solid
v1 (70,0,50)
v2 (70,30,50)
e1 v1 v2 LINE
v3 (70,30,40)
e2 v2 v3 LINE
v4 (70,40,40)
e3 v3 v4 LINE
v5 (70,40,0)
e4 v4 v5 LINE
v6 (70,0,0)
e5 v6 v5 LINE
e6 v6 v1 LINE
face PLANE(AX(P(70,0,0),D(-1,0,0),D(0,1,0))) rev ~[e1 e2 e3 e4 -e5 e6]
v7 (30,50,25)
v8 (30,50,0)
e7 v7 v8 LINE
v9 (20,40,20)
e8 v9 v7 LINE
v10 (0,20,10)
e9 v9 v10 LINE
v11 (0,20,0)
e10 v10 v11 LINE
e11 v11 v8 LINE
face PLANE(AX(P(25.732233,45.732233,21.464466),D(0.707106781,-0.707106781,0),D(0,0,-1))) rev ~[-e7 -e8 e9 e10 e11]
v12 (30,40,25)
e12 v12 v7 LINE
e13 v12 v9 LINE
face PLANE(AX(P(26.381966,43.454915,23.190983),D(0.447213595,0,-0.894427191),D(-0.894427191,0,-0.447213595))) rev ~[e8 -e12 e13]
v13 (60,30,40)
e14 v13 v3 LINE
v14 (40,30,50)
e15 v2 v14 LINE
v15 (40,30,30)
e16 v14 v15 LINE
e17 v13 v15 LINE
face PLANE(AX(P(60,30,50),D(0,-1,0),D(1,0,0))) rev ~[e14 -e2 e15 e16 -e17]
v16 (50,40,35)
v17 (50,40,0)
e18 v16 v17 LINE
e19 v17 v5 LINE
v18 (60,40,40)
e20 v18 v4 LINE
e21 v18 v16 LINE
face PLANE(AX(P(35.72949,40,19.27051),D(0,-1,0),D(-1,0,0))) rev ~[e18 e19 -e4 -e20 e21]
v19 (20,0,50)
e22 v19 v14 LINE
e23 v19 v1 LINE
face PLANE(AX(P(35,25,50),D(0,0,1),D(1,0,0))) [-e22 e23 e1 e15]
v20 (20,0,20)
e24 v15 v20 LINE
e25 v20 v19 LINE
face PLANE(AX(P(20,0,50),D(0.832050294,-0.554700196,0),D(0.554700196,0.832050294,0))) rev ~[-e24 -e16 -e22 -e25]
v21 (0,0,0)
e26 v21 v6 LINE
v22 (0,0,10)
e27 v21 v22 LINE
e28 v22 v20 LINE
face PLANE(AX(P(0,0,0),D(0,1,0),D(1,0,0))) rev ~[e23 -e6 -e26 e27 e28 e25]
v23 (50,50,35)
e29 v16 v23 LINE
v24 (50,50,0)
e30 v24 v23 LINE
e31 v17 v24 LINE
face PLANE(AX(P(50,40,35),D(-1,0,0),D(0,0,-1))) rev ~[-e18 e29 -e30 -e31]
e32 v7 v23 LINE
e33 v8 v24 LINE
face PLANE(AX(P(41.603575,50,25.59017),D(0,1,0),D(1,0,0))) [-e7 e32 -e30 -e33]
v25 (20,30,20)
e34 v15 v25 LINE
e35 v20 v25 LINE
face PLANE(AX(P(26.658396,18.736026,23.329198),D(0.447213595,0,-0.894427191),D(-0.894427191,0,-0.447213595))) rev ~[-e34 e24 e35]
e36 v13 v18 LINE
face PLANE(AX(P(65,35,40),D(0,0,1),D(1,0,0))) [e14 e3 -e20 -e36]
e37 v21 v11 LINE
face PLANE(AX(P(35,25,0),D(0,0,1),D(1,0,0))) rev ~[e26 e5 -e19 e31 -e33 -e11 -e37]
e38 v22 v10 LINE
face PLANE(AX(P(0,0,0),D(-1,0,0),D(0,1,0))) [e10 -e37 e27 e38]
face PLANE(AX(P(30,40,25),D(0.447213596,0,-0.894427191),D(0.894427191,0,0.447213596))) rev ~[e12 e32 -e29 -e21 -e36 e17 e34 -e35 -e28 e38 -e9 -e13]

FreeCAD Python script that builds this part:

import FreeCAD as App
import Part
import Sketcher

V = App.Vector
Q = App.Units.Quantity

doc = App.newDocument("Part")
body = doc.addObject("PartDesign::Body", "Body")

sketch1 = body.newObject("Sketcher::SketchObject", "Sketch")
sketch1.AttachmentSupport = (doc.getObject("XY_Plane"), [""])
sketch1.MapMode = "FlatFace"
sketch1.addGeometry(Part.LineSegment(V(0, 50, 0), V(0, 0, 0)), False)
sketch1.addGeometry(Part.LineSegment(V(0, 0, 0), V(70, 0, 0)), False)
sketch1.addGeometry(Part.LineSegment(V(70, 0, 0), V(70, 50, 0)), False)
sketch1.addGeometry(Part.LineSegment(V(70, 50, 0), V(0, 50, 0)), False)
sketch1.addConstraint(Sketcher.Constraint("Coincident", 0, 2, 1, 1))
sketch1.addConstraint(Sketcher.Constraint("Coincident", 1, 2, 2, 1))
sketch1.addConstraint(Sketcher.Constraint("Coincident", 2, 2, 3, 1))
sketch1.addConstraint(Sketcher.Constraint("Coincident", 3, 2, 0, 1))
sketch1.addConstraint(Sketcher.Constraint("Vertical", 0))
sketch1.addConstraint(Sketcher.Constraint("Horizontal", 1))
sketch1.addConstraint(Sketcher.Constraint("Vertical", 2))
sketch1.addConstraint(Sketcher.Constraint("Horizontal", 3))
sketch1.addConstraint(Sketcher.Constraint("Coincident", 0, 2, -1, 1))
sketch1.addConstraint(Sketcher.Constraint("DistanceX", 1, 1, 1, 2, Q("70 mm")))
sketch1.addConstraint(Sketcher.Constraint("DistanceY", 0, 2, 0, 1, Q("50 mm")))
pad1 = body.newObject("PartDesign::Pad", "Pad")
pad1.Profile = sketch1
pad1.Length = 50

sketch2 = body.newObject("Sketcher::SketchObject", "Sketch001")
sketch2.AttachmentSupport = (doc.getObject("XY_Plane"), [""])
sketch2.MapMode = "FlatFace"
sketch2.AttachmentOffset = App.Placement(V(0, 0, 50), App.Rotation())
sketch2.addGeometry(Part.LineSegment(V(0, 20, 0), V(30, 50, 0)), False)
sketch2.addGeometry(Part.LineSegment(V(30, 50, 0), V(0, 50, 0)), False)
sketch2.addGeometry(Part.LineSegment(V(0, 50, 0), V(0, 20, 0)), False)
sketch2.addGeometry(Part.LineSegment(V(50, 50, 0), V(50, 40, 0)), False)
sketch2.addGeometry(Part.LineSegment(V(50, 40, 0), V(70, 40, 0)), False)
sketch2.addGeometry(Part.LineSegment(V(70, 40, 0), V(70, 50, 0)), False)
sketch2.addGeometry(Part.LineSegment(V(70, 50, 0), V(50, 50, 0)), False)
sketch2.addConstraint(Sketcher.Constraint("Coincident", 0, 2, 1, 1))
sketch2.addConstraint(Sketcher.Constraint("Coincident", 1, 2, 2, 1))
sketch2.addConstraint(Sketcher.Constraint("Coincident", 2, 2, 0, 1))
sketch2.addConstraint(Sketcher.Constraint("Coincident", 3, 2, 4, 1))
sketch2.addConstraint(Sketcher.Constraint("Coincident", 4, 2, 5, 1))
sketch2.addConstraint(Sketcher.Constraint("Coincident", 5, 2, 6, 1))
sketch2.addConstraint(Sketcher.Constraint("Coincident", 6, 2, 3, 1))
sketch2.addConstraint(Sketcher.Constraint("Horizontal", 1))
sketch2.addConstraint(Sketcher.Constraint("Vertical", 2))
sketch2.addConstraint(Sketcher.Constraint("Vertical", 3))
sketch2.addConstraint(Sketcher.Constraint("Horizontal", 4))
sketch2.addConstraint(Sketcher.Constraint("Vertical", 5))
sketch2.addConstraint(Sketcher.Constraint("Horizontal", 6))
sketch2.addConstraint(Sketcher.Constraint("PointOnObject", 1, 2, -2))
sketch2.addConstraint(Sketcher.Constraint("Horizontal", 1, 2, 5, 2))
sketch2.addConstraint(Sketcher.Constraint("Equal", 1, 2))
sketch2.addConstraint(Sketcher.Constraint("DistanceX", 1, 2, 1, 1, Q("30 mm")))
sketch2.addConstraint(Sketcher.Constraint("DistanceX", 4, 1, 4, 2, Q("20 mm")))
sketch2.addConstraint(Sketcher.Constraint("DistanceY", 3, 2, 3, 1, Q("10 mm")))
sketch2.addConstraint(Sketcher.Constraint("DistanceY", -1, 1, 0, 2, Q("50 mm")))
sketch2.addConstraint(Sketcher.Constraint("DistanceX", -1, 1, 3, 2, Q("50 mm")))
pocket1 = body.newObject("PartDesign::Pocket", "Pocket")
pocket1.Profile = sketch2
pocket1.Length = 50

sketch3 = body.newObject("Sketcher::SketchObject", "Sketch002")
sketch3.AttachmentSupport = (doc.getObject("XZ_Plane"), [""])
sketch3.MapMode = "FlatFace"
sketch3.addGeometry(Part.LineSegment(V(0, 10, 0), V(20, 20, 0)), False)
sketch3.addGeometry(Part.LineSegment(V(20, 20, 0), V(20, 50, 0)), False)
sketch3.addGeometry(Part.LineSegment(V(20, 50, 0), V(0, 50, 0)), False)
sketch3.addGeometry(Part.LineSegment(V(0, 50, 0), V(0, 10, 0)), False)
sketch3.addConstraint(Sketcher.Constraint("Coincident", 0, 2, 1, 1))
sketch3.addConstraint(Sketcher.Constraint("Coincident", 1, 2, 2, 1))
sketch3.addConstraint(Sketcher.Constraint("Coincident", 2, 2, 3, 1))
sketch3.addConstraint(Sketcher.Constraint("Coincident", 3, 2, 0, 1))
sketch3.addConstraint(Sketcher.Constraint("Vertical", 1))
sketch3.addConstraint(Sketcher.Constraint("Horizontal", 2))
sketch3.addConstraint(Sketcher.Constraint("Vertical", 3))
sketch3.addConstraint(Sketcher.Constraint("PointOnObject", 2, 2, -2))
sketch3.addConstraint(Sketcher.Constraint("DistanceX", 2, 2, 2, 1, Q("20 mm")))
sketch3.addConstraint(Sketcher.Constraint("DistanceY", 1, 1, 1, 2, Q("30 mm")))
sketch3.addConstraint(Sketcher.Constraint("DistanceY", 3, 2, 3, 1, Q("40 mm")))
sketch3.addConstraint(Sketcher.Constraint("DistanceY", -1, 1, 0, 2, Q("20 mm")))
pocket2 = body.newObject("PartDesign::Pocket", "Pocket001")
pocket2.Profile = sketch3
pocket2.Length = 50

sketch4 = body.newObject("Sketcher::SketchObject", "Sketch003")
sketch4.AttachmentSupport = (doc.getObject("XY_Plane"), [""])
sketch4.MapMode = "FlatFace"
sketch4.AttachmentOffset = App.Placement(V(0, 0, 50), App.Rotation())
sketch4.addGeometry(Part.LineSegment(V(20, 0, 0), V(40, 30, 0)), False)
sketch4.addGeometry(Part.LineSegment(V(40, 30, 0), V(60, 30, 0)), False)
sketch4.addGeometry(Part.LineSegment(V(60, 30, 0), V(60, 40, 0)), False)
sketch4.addGeometry(Part.LineSegment(V(60, 40, 0), V(50, 40, 0)), False)
sketch4.addGeometry(Part.LineSegment(V(50, 40, 0), V(50, 50, 0)), False)
sketch4.addGeometry(Part.LineSegment(V(50, 50, 0), V(30, 50, 0)), False)
sketch4.addGeometry(Part.LineSegment(V(30, 50, 0), V(20, 40, 0)), False)
sketch4.addGeometry(Part.LineSegment(V(20, 40, 0), V(20, 0, 0)), False)
sketch4.addConstraint(Sketcher.Constraint("Coincident", 0, 2, 1, 1))
sketch4.addConstraint(Sketcher.Constraint("Coincident", 1, 2, 2, 1))
sketch4.addConstraint(Sketcher.Constraint("Coincident", 2, 2, 3, 1))
sketch4.addConstraint(Sketcher.Constraint("Coincident", 3, 2, 4, 1))
sketch4.addConstraint(Sketcher.Constraint("Coincident", 4, 2, 5, 1))
sketch4.addConstraint(Sketcher.Constraint("Coincident", 5, 2, 6, 1))
sketch4.addConstraint(Sketcher.Constraint("Coincident", 6, 2, 7, 1))
sketch4.addConstraint(Sketcher.Constraint("Coincident", 7, 2, 0, 1))
sketch4.addConstraint(Sketcher.Constraint("Horizontal", 1))
sketch4.addConstraint(Sketcher.Constraint("Vertical", 2))
sketch4.addConstraint(Sketcher.Constraint("Horizontal", 3))
sketch4.addConstraint(Sketcher.Constraint("Vertical", 4))
sketch4.addConstraint(Sketcher.Constraint("Horizontal", 5))
sketch4.addConstraint(Sketcher.Constraint("Vertical", 7))
sketch4.addConstraint(Sketcher.Constraint("PointOnObject", 7, 2, -1))
sketch4.addConstraint(Sketcher.Constraint("Horizontal", 3, 2, 6, 2))
sketch4.addConstraint(Sketcher.Constraint("Equal", 1, 5))
sketch4.addConstraint(Sketcher.Constraint("Equal", 3, 2))
sketch4.addConstraint(Sketcher.Constraint("Equal", 2, 4))
sketch4.addConstraint(Sketcher.Constraint("DistanceX", 1, 1, 1, 2, Q("20 mm")))
sketch4.addConstraint(Sketcher.Constraint("DistanceX", 3, 2, 3, 1, Q("10 mm")))
sketch4.addConstraint(Sketcher.Constraint("DistanceY", 7, 2, 7, 1, Q("40 mm")))
sketch4.addConstraint(Sketcher.Constraint("Angle", 6, Q("-135 deg")))
sketch4.addConstraint(Sketcher.Constraint("DistanceX", -1, 1, 0, 2, Q("40 mm")))
pocket3 = body.newObject("PartDesign::Pocket", "Pocket002")
pocket3.Profile = sketch4
pocket3.Length = 30

sketch5 = body.newObject("Sketcher::SketchObject", "Sketch004")
sketch5.AttachmentSupport = (doc.getObject("XY_Plane"), [""])
sketch5.MapMode = "FlatFace"
sketch5.AttachmentOffset = App.Placement(V(0, 0, 50), App.Rotation())
sketch5.addGeometry(Part.LineSegment(V(60, 40, 0), V(60, 30, 0)), False)
sketch5.addGeometry(Part.LineSegment(V(60, 30, 0), V(70, 30, 0)), False)
sketch5.addGeometry(Part.LineSegment(V(70, 30, 0), V(70, 40, 0)), False)
sketch5.addGeometry(Part.LineSegment(V(70, 40, 0), V(60, 40, 0)), False)
sketch5.addConstraint(Sketcher.Constraint("Coincident", 0, 2, 1, 1))
sketch5.addConstraint(Sketcher.Constraint("Coincident", 1, 2, 2, 1))
sketch5.addConstraint(Sketcher.Constraint("Coincident", 2, 2, 3, 1))
sketch5.addConstraint(Sketcher.Constraint("Coincident", 3, 2, 0, 1))
sketch5.addConstraint(Sketcher.Constraint("Vertical", 0))
sketch5.addConstraint(Sketcher.Constraint("Horizontal", 1))
sketch5.addConstraint(Sketcher.Constraint("Vertical", 2))
sketch5.addConstraint(Sketcher.Constraint("Horizontal", 3))
sketch5.addConstraint(Sketcher.Constraint("Equal", 3, 0))
sketch5.addConstraint(Sketcher.Constraint("DistanceX", 1, 1, 1, 2, Q("10 mm")))
sketch5.addConstraint(Sketcher.Constraint("DistanceX", -1, 1, 0, 2, Q("60 mm")))
sketch5.addConstraint(Sketcher.Constraint("DistanceY", -1, 1, 0, 2, Q("30 mm")))
pocket4 = body.newObject("PartDesign::Pocket", "Pocket003")
pocket4.Profile = sketch5
pocket4.Length = 10

sketch6 = body.newObject("Sketcher::SketchObject", "Sketch005")
sketch6.AttachmentSupport = (doc.getObject("XZ_Plane"), [""])
sketch6.MapMode = "FlatFace"
sketch6.AttachmentOffset = App.Placement(V(0, 0, -40), App.Rotation())
sketch6.addGeometry(Part.LineSegment(V(0, 10, 0), V(60, 40, 0)), False)
sketch6.addGeometry(Part.LineSegment(V(60, 40, 0), V(60, 10, 0)), False)
sketch6.addGeometry(Part.LineSegment(V(60, 10, 0), V(0, 10, 0)), False)
sketch6.addConstraint(Sketcher.Constraint("Coincident", 0, 2, 1, 1))
sketch6.addConstraint(Sketcher.Constraint("Coincident", 1, 2, 2, 1))
sketch6.addConstraint(Sketcher.Constraint("Coincident", 2, 2, 0, 1))
sketch6.addConstraint(Sketcher.Constraint("Vertical", 1))
sketch6.addConstraint(Sketcher.Constraint("Horizontal", 2))
sketch6.addConstraint(Sketcher.Constraint("PointOnObject", 2, 2, -2))
sketch6.addConstraint(Sketcher.Constraint("DistanceX", 2, 2, 2, 1, Q("60 mm")))
sketch6.addConstraint(Sketcher.Constraint("DistanceY", 1, 2, 1, 1, Q("30 mm")))
sketch6.addConstraint(Sketcher.Constraint("DistanceY", -1, 1, 0, 2, Q("40 mm")))
pad2 = body.newObject("PartDesign::Pad", "Pad001")
pad2.Profile = sketch6
pad2.Length = 10

sketch7 = body.newObject("Sketcher::SketchObject", "Sketch006")
sketch7.AttachmentSupport = (doc.getObject("XY_Plane"), [""])
sketch7.MapMode = "FlatFace"
sketch7.AttachmentOffset = App.Placement(V(0, 0, 10), App.Rotation())
sketch7.addGeometry(Part.LineSegment(V(10, 30, 0), V(0, 30, 0)), False)
sketch7.addGeometry(Part.LineSegment(V(0, 30, 0), V(0, 40, 0)), False)
sketch7.addGeometry(Part.LineSegment(V(0, 40, 0), V(20, 40, 0)), False)
sketch7.addGeometry(Part.LineSegment(V(20, 40, 0), V(10, 30, 0)), False)
sketch7.addConstraint(Sketcher.Constraint("Coincident", 0, 2, 1, 1))
sketch7.addConstraint(Sketcher.Constraint("Coincident", 1, 2, 2, 1))
sketch7.addConstraint(Sketcher.Constraint("Coincident", 2, 2, 3, 1))
sketch7.addConstraint(Sketcher.Constraint("Coincident", 3, 2, 0, 1))
sketch7.addConstraint(Sketcher.Constraint("Horizontal", 0))
sketch7.addConstraint(Sketcher.Constraint("Vertical", 1))
sketch7.addConstraint(Sketcher.Constraint("Horizontal", 2))
sketch7.addConstraint(Sketcher.Constraint("PointOnObject", 0, 2, -2))
sketch7.addConstraint(Sketcher.Constraint("Equal", 0, 1))
sketch7.addConstraint(Sketcher.Constraint("DistanceX", 0, 2, 0, 1, Q("10 mm")))
sketch7.addConstraint(Sketcher.Constraint("DistanceX", 2, 1, 2, 2, Q("20 mm")))
sketch7.addConstraint(Sketcher.Constraint("DistanceY", -1, 1, 0, 2, Q("30 mm")))
pocket5 = body.newObject("PartDesign::Pocket", "Pocket004")
pocket5.Profile = sketch7
pocket5.Length = 10
pocket5.Reversed = True

sketch8 = body.newObject("Sketcher::SketchObject", "Sketch007")
sketch8.AttachmentSupport = (doc.getObject("XZ_Plane"), [""])
sketch8.MapMode = "FlatFace"
sketch8.AttachmentOffset = App.Placement(V(0, 0, -40), App.Rotation())
sketch8.addGeometry(Part.LineSegment(V(30, 25, 0), V(50, 35, 0)), False)
sketch8.addGeometry(Part.LineSegment(V(50, 35, 0), V(50, 20, 0)), False)
sketch8.addGeometry(Part.LineSegment(V(50, 20, 0), V(30, 20, 0)), False)
sketch8.addGeometry(Part.LineSegment(V(30, 20, 0), V(30, 25, 0)), False)
sketch8.addConstraint(Sketcher.Constraint("Coincident", 0, 2, 1, 1))
sketch8.addConstraint(Sketcher.Constraint("Coincident", 1, 2, 2, 1))
sketch8.addConstraint(Sketcher.Constraint("Coincident", 2, 2, 3, 1))
sketch8.addConstraint(Sketcher.Constraint("Coincident", 3, 2, 0, 1))
sketch8.addConstraint(Sketcher.Constraint("Vertical", 1))
sketch8.addConstraint(Sketcher.Constraint("Horizontal", 2))
sketch8.addConstraint(Sketcher.Constraint("Vertical", 3))
sketch8.addConstraint(Sketcher.Constraint("DistanceX", 2, 2, 2, 1, Q("20 mm")))
sketch8.addConstraint(Sketcher.Constraint("DistanceY", 1, 2, 1, 1, Q("15 mm")))
sketch8.addConstraint(Sketcher.Constraint("DistanceY", 3, 1, 3, 2, Q("5 mm")))
sketch8.addConstraint(Sketcher.Constraint("DistanceX", -1, 1, 0, 2, Q("50 mm")))
sketch8.addConstraint(Sketcher.Constraint("DistanceY", -1, 1, 0, 2, Q("35 mm")))
pad3 = body.newObject("PartDesign::Pad", "Pad002")
pad3.Profile = sketch8
pad3.Length = 10
pad3.Reversed = True

sketch9 = body.newObject("Sketcher::SketchObject", "Sketch008")
sketch9.Placement = App.Placement(V(-4, 0, 8), App.Rotation(V(0.894427191, 0, 0.447213595), V(0, 1, 0), V(-0.447213595, 0, 0.894427191), "ZXY"))
sketch9.addGeometry(Part.LineSegment(V(38, 50, 0), V(27, 40, 0)), False)
sketch9.addGeometry(Part.LineSegment(V(27, 40, 0), V(38, 40, 0)), False)
sketch9.addGeometry(Part.LineSegment(V(38, 40, 0), V(38, 50, 0)), False)
sketch9.addConstraint(Sketcher.Constraint("Coincident", 0, 2, 1, 1))
sketch9.addConstraint(Sketcher.Constraint("Coincident", 1, 2, 2, 1))
sketch9.addConstraint(Sketcher.Constraint("Coincident", 2, 2, 0, 1))
sketch9.addConstraint(Sketcher.Constraint("Horizontal", 1))
sketch9.addConstraint(Sketcher.Constraint("Vertical", 2))
sketch9.addConstraint(Sketcher.Constraint("DistanceY", 2, 1, 2, 2, Q("10 mm")))
sketch9.addConstraint(Sketcher.Constraint("Distance", 0, Q("15 mm")))
sketch9.addConstraint(Sketcher.Constraint("DistanceY", -1, 1, 0, 2, Q("40 mm")))
sketch9.addConstraint(Sketcher.Constraint("DistanceX", -1, 1, 0, 2, Q("26.832816 mm")))
pad4 = body.newObject("PartDesign::Pad", "Pad003")
pad4.Profile = sketch9
pad4.Length = 10
pad4.Reversed = True

sketch10 = body.newObject("Sketcher::SketchObject", "Sketch009")
sketch10.Placement = App.Placement(V(-10, 10, 0), App.Rotation(V(0, 0, 1), V(0.707106781, 0.707106781, 0), V(-0.707106781, 0.707106781, 0), "ZXY"))
sketch10.addGeometry(Part.LineSegment(V(20, 57, 0), V(20, 42, 0)), False)
sketch10.addGeometry(Part.LineSegment(V(20, 42, 0), V(25, 57, 0)), False)
sketch10.addGeometry(Part.LineSegment(V(25, 57, 0), V(20, 57, 0)), False)
sketch10.addConstraint(Sketcher.Constraint("Coincident", 0, 2, 1, 1))
sketch10.addConstraint(Sketcher.Constraint("Coincident", 1, 2, 2, 1))
sketch10.addConstraint(Sketcher.Constraint("Coincident", 2, 2, 0, 1))
sketch10.addConstraint(Sketcher.Constraint("Vertical", 0))
sketch10.addConstraint(Sketcher.Constraint("Horizontal", 2))
sketch10.addConstraint(Sketcher.Constraint("DistanceX", 2, 2, 2, 1, Q("5 mm")))
sketch10.addConstraint(Sketcher.Constraint("Distance", 1, Q("15 mm")))
sketch10.addConstraint(Sketcher.Constraint("DistanceX", -1, 1, 0, 2, Q("20 mm")))
sketch10.addConstraint(Sketcher.Constraint("DistanceY", -1, 1, 0, 2, Q("42.426407 mm")))
pad5 = body.newObject("PartDesign::Pad", "Pad004")
pad5.Profile = sketch10
pad5.Length = 10
pad5.Reversed = True

sketch11 = body.newObject("Sketcher::SketchObject", "Sketch010")
sketch11.Placement = App.Placement(V(-4, 0, 8), App.Rotation(V(0.894427191, 0, 0.447213595), V(0, 1, 0), V(-0.447213595, 0, 0.894427191), "ZXY"))
sketch11.addGeometry(Part.LineSegment(V(27, 30, 0), V(27, 0, 0)), False)
sketch11.addGeometry(Part.LineSegment(V(27, 0, 0), V(49, 30, 0)), False)
sketch11.addGeometry(Part.LineSegment(V(49, 30, 0), V(27, 30, 0)), False)
sketch11.addConstraint(Sketcher.Constraint("Coincident", 0, 2, 1, 1))
sketch11.addConstraint(Sketcher.Constraint("Coincident", 1, 2, 2, 1))
sketch11.addConstraint(Sketcher.Constraint("Coincident", 2, 2, 0, 1))
sketch11.addConstraint(Sketcher.Constraint("Vertical", 0))
sketch11.addConstraint(Sketcher.Constraint("Horizontal", 2))
sketch11.addConstraint(Sketcher.Constraint("PointOnObject", 0, 2, -1))
sketch11.addConstraint(Sketcher.Constraint("DistanceY", 0, 2, 0, 1, Q("30 mm")))
sketch11.addConstraint(Sketcher.Constraint("DistanceX", 2, 2, 2, 1, Q("22.36068 mm")))
sketch11.addConstraint(Sketcher.Constraint("DistanceX", -1, 1, 0, 2, Q("26.832816 mm")))
pad6 = body.newObject("PartDesign::Pad", "Pad005")
pad6.Profile = sketch11
pad6.Length = 22
pad6.Reversed = True

doc.recompute()
